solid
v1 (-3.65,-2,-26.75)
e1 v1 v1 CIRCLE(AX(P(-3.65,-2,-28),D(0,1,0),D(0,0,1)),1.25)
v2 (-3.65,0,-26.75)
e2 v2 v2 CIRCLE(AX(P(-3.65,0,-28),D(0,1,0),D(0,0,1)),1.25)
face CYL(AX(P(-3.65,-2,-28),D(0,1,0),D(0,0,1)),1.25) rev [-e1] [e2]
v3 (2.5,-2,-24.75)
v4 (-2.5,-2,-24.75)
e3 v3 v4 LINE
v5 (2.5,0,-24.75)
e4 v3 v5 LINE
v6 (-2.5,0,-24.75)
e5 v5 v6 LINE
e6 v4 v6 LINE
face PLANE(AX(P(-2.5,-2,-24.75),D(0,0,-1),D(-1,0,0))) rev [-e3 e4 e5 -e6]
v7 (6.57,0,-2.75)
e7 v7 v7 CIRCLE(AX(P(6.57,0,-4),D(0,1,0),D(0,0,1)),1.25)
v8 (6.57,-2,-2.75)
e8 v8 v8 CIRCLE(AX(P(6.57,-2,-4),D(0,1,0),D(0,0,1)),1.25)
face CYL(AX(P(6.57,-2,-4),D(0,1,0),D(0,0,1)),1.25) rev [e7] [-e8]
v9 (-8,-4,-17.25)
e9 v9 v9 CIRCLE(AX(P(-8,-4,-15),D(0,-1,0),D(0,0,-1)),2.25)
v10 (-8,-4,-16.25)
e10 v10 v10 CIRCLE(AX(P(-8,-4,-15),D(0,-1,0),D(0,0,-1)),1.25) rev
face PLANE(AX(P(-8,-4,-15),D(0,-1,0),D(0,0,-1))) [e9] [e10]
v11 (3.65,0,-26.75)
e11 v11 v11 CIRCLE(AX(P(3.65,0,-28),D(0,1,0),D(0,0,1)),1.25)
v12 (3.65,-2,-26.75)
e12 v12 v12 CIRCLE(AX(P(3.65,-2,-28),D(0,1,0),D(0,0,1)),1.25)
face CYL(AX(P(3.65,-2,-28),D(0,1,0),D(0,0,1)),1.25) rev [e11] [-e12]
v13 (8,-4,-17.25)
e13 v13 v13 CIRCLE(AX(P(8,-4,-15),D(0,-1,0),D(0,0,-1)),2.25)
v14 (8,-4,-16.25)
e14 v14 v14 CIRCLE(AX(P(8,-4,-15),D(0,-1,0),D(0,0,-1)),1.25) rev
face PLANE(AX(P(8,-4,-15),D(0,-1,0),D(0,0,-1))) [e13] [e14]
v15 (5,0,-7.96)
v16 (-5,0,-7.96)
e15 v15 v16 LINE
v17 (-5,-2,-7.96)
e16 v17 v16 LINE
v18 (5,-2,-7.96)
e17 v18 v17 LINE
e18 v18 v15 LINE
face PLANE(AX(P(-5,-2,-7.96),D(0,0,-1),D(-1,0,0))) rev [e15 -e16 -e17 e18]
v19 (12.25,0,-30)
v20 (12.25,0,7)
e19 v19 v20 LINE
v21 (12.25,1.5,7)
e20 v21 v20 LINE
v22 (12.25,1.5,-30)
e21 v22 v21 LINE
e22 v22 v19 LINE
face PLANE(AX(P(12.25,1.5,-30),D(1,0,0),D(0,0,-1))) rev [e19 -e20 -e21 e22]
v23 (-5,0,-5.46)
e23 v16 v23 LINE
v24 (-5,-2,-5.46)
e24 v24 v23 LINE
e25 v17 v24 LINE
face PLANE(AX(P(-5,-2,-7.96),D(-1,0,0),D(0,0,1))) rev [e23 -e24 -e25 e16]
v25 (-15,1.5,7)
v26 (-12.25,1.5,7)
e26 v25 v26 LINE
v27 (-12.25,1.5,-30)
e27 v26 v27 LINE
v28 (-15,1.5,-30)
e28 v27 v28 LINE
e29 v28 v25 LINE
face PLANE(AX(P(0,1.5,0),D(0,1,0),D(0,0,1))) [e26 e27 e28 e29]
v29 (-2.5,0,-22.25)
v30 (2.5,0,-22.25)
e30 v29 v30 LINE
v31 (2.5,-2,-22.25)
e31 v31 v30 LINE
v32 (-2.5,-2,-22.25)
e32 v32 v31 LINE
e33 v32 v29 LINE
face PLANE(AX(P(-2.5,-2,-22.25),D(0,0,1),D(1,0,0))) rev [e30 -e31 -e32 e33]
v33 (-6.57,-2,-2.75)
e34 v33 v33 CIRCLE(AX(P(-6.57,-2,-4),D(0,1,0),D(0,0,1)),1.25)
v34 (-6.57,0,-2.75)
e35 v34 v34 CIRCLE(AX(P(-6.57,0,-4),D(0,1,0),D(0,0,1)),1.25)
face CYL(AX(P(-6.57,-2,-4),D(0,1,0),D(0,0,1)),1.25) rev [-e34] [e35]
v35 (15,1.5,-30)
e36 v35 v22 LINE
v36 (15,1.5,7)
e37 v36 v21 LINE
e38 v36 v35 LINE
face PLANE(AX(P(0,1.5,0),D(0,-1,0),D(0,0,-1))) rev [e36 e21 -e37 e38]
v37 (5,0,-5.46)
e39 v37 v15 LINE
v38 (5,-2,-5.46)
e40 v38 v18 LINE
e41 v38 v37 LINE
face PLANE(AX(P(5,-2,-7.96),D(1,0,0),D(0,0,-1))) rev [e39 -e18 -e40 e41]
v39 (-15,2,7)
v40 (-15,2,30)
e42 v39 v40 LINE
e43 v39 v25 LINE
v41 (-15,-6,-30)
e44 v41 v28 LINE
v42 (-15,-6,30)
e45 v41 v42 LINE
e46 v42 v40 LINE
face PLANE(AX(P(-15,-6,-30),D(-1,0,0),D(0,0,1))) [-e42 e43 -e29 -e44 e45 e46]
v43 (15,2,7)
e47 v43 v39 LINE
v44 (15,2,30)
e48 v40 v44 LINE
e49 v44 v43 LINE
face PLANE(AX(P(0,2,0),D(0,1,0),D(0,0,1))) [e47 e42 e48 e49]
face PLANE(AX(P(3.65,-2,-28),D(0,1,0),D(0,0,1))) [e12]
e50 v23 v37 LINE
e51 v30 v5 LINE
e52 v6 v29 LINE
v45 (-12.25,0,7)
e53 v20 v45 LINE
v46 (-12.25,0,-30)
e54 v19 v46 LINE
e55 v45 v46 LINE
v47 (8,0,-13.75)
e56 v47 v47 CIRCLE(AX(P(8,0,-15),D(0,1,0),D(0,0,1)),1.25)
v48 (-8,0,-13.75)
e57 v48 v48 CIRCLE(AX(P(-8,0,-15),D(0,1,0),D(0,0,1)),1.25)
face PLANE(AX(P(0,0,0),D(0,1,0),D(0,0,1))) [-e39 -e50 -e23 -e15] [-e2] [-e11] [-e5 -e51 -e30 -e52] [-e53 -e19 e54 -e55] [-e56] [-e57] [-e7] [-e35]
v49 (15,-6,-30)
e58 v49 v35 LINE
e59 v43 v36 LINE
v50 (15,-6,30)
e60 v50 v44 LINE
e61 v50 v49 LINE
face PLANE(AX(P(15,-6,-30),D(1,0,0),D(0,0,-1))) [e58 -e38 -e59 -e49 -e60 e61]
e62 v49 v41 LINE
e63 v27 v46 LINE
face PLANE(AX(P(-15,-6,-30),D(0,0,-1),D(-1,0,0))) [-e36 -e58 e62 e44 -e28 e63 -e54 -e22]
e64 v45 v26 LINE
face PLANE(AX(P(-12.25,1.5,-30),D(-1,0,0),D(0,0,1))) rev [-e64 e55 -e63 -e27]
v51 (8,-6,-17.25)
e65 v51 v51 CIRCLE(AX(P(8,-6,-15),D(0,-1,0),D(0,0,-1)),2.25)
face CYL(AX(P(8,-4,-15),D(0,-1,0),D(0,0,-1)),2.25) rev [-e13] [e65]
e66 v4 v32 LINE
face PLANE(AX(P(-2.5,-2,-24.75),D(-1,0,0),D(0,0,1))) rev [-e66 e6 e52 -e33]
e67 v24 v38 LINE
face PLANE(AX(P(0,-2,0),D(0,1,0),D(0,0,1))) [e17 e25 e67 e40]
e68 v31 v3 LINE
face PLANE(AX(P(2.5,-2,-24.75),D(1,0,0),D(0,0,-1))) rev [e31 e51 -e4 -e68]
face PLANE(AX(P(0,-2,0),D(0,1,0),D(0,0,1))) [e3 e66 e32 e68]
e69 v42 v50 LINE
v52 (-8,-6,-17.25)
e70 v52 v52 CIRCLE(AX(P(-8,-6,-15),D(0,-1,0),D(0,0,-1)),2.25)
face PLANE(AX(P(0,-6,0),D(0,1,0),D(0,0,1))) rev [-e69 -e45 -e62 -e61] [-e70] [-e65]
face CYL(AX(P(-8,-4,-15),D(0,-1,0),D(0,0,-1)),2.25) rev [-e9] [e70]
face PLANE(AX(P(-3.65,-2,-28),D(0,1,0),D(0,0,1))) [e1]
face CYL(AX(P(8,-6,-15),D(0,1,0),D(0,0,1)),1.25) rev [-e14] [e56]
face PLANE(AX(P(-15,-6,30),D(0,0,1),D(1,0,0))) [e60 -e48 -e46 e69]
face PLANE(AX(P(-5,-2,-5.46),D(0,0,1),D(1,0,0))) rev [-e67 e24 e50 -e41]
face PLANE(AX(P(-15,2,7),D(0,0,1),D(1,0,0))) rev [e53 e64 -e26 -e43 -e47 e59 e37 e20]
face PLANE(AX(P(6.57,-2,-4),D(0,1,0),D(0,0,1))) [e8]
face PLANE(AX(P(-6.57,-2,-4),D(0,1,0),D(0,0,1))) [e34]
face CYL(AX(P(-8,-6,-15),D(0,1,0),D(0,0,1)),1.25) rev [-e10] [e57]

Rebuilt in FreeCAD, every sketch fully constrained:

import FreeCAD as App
import Part
import Sketcher

V = App.Vector


def add_polygon(sketch, points):
    """Adds a closed chain of lines whose ends are joined by coincident constraints."""
    first, n = sketch.GeometryCount, len(points)
    for a, b in zip(points, points[1:] + points[:1]):
        sketch.addGeometry(Part.LineSegment(App.Vector(*a, 0), App.Vector(*b, 0)), False)
    for i in range(n):
        sketch.addConstraint(Sketcher.Constraint("Coincident", first + i, 2, first + (i + 1) % n, 1))

doc = App.newDocument("Part")
body = doc.addObject("PartDesign::Body", "Body")

sketch1 = body.newObject("Sketcher::SketchObject", "Sketch")
sketch1.AttachmentSupport = (doc.getObject("XZ_Plane"), [""])
sketch1.MapMode = "FlatFace"
add_polygon(sketch1, [(-15, -30), (-15, 30), (15, 30), (15, -30)])
sketch1.addGeometry(Part.Circle(V(-8, -15, 0), V(0, 0, 1), 1.2), False)
sketch1.addGeometry(Part.Circle(V(8, -15, 0), V(0, 0, 1), 1.2), False)
sketch1.addConstraint([
    Sketcher.Constraint("Vertical", 0),
    Sketcher.Constraint("Horizontal", 1),
    Sketcher.Constraint("Vertical", 2),
    Sketcher.Constraint("Horizontal", 3),
    Sketcher.Constraint("Equal", 4, 5),
    Sketcher.Constraint("Symmetric", 0, 2, 2, 2, -1, 1),
    Sketcher.Constraint("Symmetric", 4, 3, 5, 3, -2),
    Sketcher.Constraint("Diameter", 4, 2.5),
    Sketcher.Constraint("DistanceX", 1, 1, 1, 2, 30.0),
    Sketcher.Constraint("DistanceY", 0, 1, 0, 2, 60.0),
    Sketcher.Constraint("DistanceX", 4, 3, -1, 1, 8.0),
    Sketcher.Constraint("DistanceY", 4, 3, -1, 1, 15.0),
])
pad1 = body.newObject("PartDesign::Pad", "Pad")
pad1.Profile = sketch1
pad1.Length = 6

sketch2 = body.newObject("Sketcher::SketchObject", "Sketch001")
sketch2.AttachmentSupport = (doc.getObject("XZ_Plane"), [""])
sketch2.MapMode = "FlatFace"
sketch2.AttachmentOffset = App.Placement(V(0, 0, 6), App.Rotation())
sketch2.addGeometry([
    Part.Circle(V(8, -15, 0), V(0, 0, 1), 2.2),
    Part.Circle(V(-8, -15, 0), V(0, 0, 1), 2.2),
], False)
sketch2.addConstraint([
    Sketcher.Constraint("Equal", 0, 1),
    Sketcher.Constraint("Symmetric", 0, 3, 1, 3, -2),
    Sketcher.Constraint("Diameter", 0, 4.5),
    Sketcher.Constraint("DistanceX", -1, 1, 0, 3, 8.0),
    Sketcher.Constraint("DistanceY", 0, 3, -1, 1, 15.0),
])
pocket1 = body.newObject("PartDesign::Pocket", "Pocket")
pocket1.Profile = sketch2
pocket1.Length = 2

sketch3 = body.newObject("Sketcher::SketchObject", "Sketch002")
sketch3.AttachmentSupport = (doc.getObject("XZ_Plane"), [""])
sketch3.MapMode = "FlatFace"
add_polygon(sketch3, [(-15, -30), (-15, 30), (-12.2, 30), (-12.2, -30)])
add_polygon(sketch3, [(12.2, -30), (12.2, 30), (15, 30), (15, -30)])
sketch3.addConstraint([
    Sketcher.Constraint("Vertical", 0),
    Sketcher.Constraint("Horizontal", 1),
    Sketcher.Constraint("Vertical", 2),
    Sketcher.Constraint("Horizontal", 3),
    Sketcher.Constraint("Vertical", 4),
    Sketcher.Constraint("Horizontal", 5),
    Sketcher.Constraint("Vertical", 6),
    Sketcher.Constraint("Horizontal", 7),
    Sketcher.Constraint("Symmetric", 2, 2, 4, 2, -1, 1),
    Sketcher.Constraint("Symmetric", 0, 2, 6, 2, -1, 1),
    Sketcher.Constraint("Horizontal", 1, 2, 4, 2),
    Sketcher.Constraint("DistanceY", 0, 1, 0, 2, 60.0),
    Sketcher.Constraint("DistanceX", 0, 2, -1, 1, 15.0),
    Sketcher.Constraint("DistanceX", 1, 1, 1, 2, 2.75),
])
pad2 = body.newObject("PartDesign::Pad", "Pad001")
pad2.Profile = sketch3
pad2.Length = 1.5
pad2.Reversed = True

sketch4 = body.newObject("Sketcher::SketchObject", "Sketch003")
sketch4.AttachmentSupport = (doc.getObject("XZ_Plane"), [""])
sketch4.MapMode = "FlatFace"
sketch4.addGeometry(Part.Circle(V(-3.6, -28, 0), V(0, 0, 1), 1.2), False)
sketch4.addGeometry(Part.Circle(V(3.6, -28, 0), V(0, 0, 1), 1.2), False)
sketch4.addGeometry(Part.Circle(V(-6.6, -4, 0), V(0, 0, 1), 1.2), False)
sketch4.addGeometry(Part.Circle(V(6.6, -4, 0), V(0, 0, 1), 1.2), False)
add_polygon(sketch4, [(-2.5, -24.8), (-2.5, -22.2), (2.5, -22.2), (2.5, -24.8)])
add_polygon(sketch4, [(-5, -8), (-5, -5.5), (5, -5.5), (5, -8)])
sketch4.addConstraint([
    Sketcher.Constraint("Vertical", 4),
    Sketcher.Constraint("Horizontal", 5),
    Sketcher.Constraint("Vertical", 6),
    Sketcher.Constraint("Horizontal", 7),
    Sketcher.Constraint("Vertical", 8),
    Sketcher.Constraint("Horizontal", 9),
    Sketcher.Constraint("Vertical", 10),
    Sketcher.Constraint("Horizontal", 11),
    Sketcher.Constraint("Equal", 0, 1),
    Sketcher.Constraint("Equal", 1, 2),
    Sketcher.Constraint("Equal", 2, 3),
    Sketcher.Constraint("Symmetric", 0, 3, 1, 3, -2),
    Sketcher.Constraint("Symmetric", 2, 3, 3, 3, -2),
    Sketcher.Constraint("Equal", 6, 8),
    Sketcher.Constraint("Diameter", 0, 2.5),
    Sketcher.Constraint("DistanceX", 5, 1, 5, 2, 5.0),
    Sketcher.Constraint("DistanceX", 9, 1, 9, 2, 10.0),
    Sketcher.Constraint("DistanceY", 4, 1, 4, 2, 2.5),
    Sketcher.Constraint("DistanceY", 0, 3, -1, 1, 28.0),
    Sketcher.Constraint("DistanceY", 2, 3, -1, 1, 4.0),
    Sketcher.Constraint("DistanceX", 8, 2, -1, 1, 5.0),
    Sketcher.Constraint("DistanceX", 4, 2, -1, 1, 2.5),
    Sketcher.Constraint("DistanceX", 0, 3, 1, 3, 7.3),
    Sketcher.Constraint("DistanceX", 2, 3, -1, 1, 6.57),
    Sketcher.Constraint("DistanceY", 4, 2, -1, 1, 22.25),
    Sketcher.Constraint("DistanceY", 8, 2, -1, 1, 5.46),
])
pocket2 = body.newObject("PartDesign::Pocket", "Pocket001")
pocket2.Profile = sketch4
pocket2.Length = 2
pocket2.Reversed = True

sketch5 = body.newObject("Sketcher::SketchObject", "Sketch004")
sketch5.AttachmentSupport = (doc.getObject("XZ_Plane"), [""])
sketch5.MapMode = "FlatFace"
add_polygon(sketch5, [(-15, 7), (-15, 30), (15, 30), (15, 7)])
sketch5.addConstraint([
    Sketcher.Constraint("Vertical", 0),
    Sketcher.Constraint("Horizontal", 1),
    Sketcher.Constraint("Vertical", 2),
    Sketcher.Constraint("Horizontal", 3),
    Sketcher.Constraint("DistanceX", 1, 1, 1, 2, 30.0),
    Sketcher.Constraint("DistanceY", 0, 1, 0, 2, 23.0),
    Sketcher.Constraint("DistanceX", 0, 2, -1, 1, 15.0),
    Sketcher.Constraint("DistanceY", -1, 1, 0, 2, 30.0),
])
pad3 = body.newObject("PartDesign::Pad", "Pad002")
pad3.Profile = sketch5
pad3.Length = 2
pad3.Reversed = True

doc.recompute()
